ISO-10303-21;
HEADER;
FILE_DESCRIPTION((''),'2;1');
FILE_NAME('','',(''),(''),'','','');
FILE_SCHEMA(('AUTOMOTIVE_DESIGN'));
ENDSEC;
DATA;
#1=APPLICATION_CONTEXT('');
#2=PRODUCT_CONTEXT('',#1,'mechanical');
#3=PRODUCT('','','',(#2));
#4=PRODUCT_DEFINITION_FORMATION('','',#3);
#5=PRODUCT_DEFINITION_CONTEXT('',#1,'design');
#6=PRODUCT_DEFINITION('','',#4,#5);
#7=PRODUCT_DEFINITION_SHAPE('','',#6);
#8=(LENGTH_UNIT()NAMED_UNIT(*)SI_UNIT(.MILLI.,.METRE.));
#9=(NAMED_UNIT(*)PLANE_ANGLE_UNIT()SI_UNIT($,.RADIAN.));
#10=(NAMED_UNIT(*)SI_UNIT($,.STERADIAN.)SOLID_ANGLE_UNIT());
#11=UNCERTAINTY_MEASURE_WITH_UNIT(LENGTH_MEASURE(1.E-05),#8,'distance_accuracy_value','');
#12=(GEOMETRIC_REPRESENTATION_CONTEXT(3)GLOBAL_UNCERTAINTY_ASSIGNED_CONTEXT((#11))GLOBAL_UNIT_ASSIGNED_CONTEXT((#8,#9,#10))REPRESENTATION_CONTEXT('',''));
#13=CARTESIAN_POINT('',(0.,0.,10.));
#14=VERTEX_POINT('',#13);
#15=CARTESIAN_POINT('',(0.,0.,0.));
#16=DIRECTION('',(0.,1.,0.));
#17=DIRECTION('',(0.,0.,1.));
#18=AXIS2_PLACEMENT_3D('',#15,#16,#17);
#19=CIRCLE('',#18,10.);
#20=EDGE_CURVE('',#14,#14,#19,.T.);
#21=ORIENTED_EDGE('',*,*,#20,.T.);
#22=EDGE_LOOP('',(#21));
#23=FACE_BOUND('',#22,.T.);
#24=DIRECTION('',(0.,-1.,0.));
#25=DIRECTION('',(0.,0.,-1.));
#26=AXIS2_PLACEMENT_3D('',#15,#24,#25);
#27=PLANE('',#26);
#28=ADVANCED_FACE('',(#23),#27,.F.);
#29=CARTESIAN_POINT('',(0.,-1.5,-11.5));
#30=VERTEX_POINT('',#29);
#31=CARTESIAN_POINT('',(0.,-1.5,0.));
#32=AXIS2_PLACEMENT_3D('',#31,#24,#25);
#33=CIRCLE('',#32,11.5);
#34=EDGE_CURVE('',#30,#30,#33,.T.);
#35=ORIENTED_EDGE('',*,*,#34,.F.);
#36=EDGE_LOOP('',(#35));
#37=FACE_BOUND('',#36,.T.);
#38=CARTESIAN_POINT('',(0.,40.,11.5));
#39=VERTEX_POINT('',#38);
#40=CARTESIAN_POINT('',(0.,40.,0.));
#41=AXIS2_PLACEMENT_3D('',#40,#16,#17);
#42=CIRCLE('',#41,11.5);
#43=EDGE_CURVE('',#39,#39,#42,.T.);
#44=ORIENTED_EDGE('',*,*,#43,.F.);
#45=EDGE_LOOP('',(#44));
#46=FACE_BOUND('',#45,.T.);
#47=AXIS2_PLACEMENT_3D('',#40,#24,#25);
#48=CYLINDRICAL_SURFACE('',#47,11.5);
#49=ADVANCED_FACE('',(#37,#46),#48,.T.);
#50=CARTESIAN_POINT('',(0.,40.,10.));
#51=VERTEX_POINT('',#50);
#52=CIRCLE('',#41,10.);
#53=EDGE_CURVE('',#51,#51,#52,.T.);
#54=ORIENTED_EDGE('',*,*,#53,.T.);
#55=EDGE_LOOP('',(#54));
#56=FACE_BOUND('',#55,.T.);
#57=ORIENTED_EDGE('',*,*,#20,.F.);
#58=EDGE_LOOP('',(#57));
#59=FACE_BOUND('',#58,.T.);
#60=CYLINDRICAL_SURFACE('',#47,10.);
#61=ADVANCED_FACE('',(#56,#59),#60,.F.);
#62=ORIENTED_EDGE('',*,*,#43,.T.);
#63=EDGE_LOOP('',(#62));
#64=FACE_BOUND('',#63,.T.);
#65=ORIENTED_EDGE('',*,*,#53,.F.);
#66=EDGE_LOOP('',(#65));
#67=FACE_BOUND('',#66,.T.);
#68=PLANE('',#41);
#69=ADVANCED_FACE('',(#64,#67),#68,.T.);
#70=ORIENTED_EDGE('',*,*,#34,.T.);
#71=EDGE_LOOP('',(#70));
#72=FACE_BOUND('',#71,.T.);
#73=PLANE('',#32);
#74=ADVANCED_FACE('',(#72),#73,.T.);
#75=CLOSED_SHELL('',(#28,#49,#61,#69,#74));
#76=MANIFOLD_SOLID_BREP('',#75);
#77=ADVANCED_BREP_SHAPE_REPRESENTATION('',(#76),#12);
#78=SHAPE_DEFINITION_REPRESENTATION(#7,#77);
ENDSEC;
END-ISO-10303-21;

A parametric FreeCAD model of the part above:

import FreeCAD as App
import Part
import Sketcher
from FreeCAD import Vector
Q = App.Units.Quantity

doc = App.newDocument("Part")
body = doc.addObject("PartDesign::Body", "Body")

# Sketch on XZ plane
sketch1 = body.newObject("Sketcher::SketchObject", "Sketch")
sketch1.AttachmentSupport = (doc.getObject("XZ_Plane"), [""])
sketch1.MapMode = "FlatFace"
sketch1.addGeometry(Part.Circle(Vector(0, 0, 0), Vector(0, 0, 1), 12), False)
sketch1.addGeometry(Part.Circle(Vector(0, 0, 0), Vector(0, 0, 1), 10), False)
sketch1.addConstraint(Sketcher.Constraint("Coincident", 0, 3, -1, 1))
sketch1.addConstraint(Sketcher.Constraint("Coincident", 1, 3, -1, 1))
sketch1.addConstraint(Sketcher.Constraint("Diameter", 0, Q("23 mm")))
sketch1.addConstraint(Sketcher.Constraint("Diameter", 1, Q("20 mm")))
pad1 = body.newObject("PartDesign::Pad", "Pad")
pad1.Profile = sketch1
pad1.Length = 40
pad1.Reversed = True

# Sketch on XZ plane
sketch2 = body.newObject("Sketcher::SketchObject", "Sketch001")
sketch2.AttachmentSupport = (doc.getObject("XZ_Plane"), [""])
sketch2.MapMode = "FlatFace"
sketch2.AttachmentOffset = App.Placement(Vector(0, 0, 1.5), App.Rotation())
sketch2.addGeometry(Part.Circle(Vector(0, 0, 0), Vector(0, 0, 1), 12), False)
sketch2.addConstraint(Sketcher.Constraint("Coincident", 0, 3, -1, 1))
sketch2.addConstraint(Sketcher.Constraint("Diameter", 0, Q("23 mm")))
pad2 = body.newObject("PartDesign::Pad", "Pad001")
pad2.Profile = sketch2
pad2.Length = 1.5
pad2.Reversed = True

doc.recompute()
